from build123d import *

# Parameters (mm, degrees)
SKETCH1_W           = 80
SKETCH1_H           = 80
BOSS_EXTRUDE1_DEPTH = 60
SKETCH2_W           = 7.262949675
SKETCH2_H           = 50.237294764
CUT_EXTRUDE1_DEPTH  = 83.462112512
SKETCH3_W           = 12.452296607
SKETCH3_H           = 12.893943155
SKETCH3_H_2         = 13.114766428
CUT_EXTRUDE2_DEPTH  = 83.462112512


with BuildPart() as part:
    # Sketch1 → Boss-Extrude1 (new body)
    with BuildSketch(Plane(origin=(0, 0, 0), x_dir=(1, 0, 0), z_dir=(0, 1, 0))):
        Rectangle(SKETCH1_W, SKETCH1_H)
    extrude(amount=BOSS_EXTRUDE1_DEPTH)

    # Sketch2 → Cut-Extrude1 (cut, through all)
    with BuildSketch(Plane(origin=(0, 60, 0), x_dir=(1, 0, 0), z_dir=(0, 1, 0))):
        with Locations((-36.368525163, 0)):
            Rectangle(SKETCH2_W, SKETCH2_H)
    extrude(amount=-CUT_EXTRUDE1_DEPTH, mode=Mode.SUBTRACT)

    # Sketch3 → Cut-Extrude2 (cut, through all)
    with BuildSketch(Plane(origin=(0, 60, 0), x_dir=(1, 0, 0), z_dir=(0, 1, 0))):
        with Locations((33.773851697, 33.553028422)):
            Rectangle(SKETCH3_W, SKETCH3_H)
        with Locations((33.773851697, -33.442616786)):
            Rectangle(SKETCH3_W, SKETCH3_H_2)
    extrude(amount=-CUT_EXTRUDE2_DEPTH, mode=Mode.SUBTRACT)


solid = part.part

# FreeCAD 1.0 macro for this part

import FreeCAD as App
import Part
import Sketcher
from FreeCAD import Vector
Q = App.Units.Quantity


def add_polygon(sketch, points):
    """Adds a closed chain of lines whose ends are joined by coincident constraints."""
    first, n = sketch.GeometryCount, len(points)
    for a, b in zip(points, points[1:] + points[:1]):
        sketch.addGeometry(Part.LineSegment(App.Vector(*a, 0), App.Vector(*b, 0)), False)
    for i in range(n):
        sketch.addConstraint(Sketcher.Constraint("Coincident", first + i, 2, first + (i + 1) % n, 1))

doc = App.newDocument("Part")
body = doc.addObject("PartDesign::Body", "Body")

# Sketch on XZ plane
sketch1 = body.newObject("Sketcher::SketchObject", "Sketch")
sketch1.AttachmentSupport = (doc.getObject("XZ_Plane"), [""])
sketch1.MapMode = "FlatFace"
add_polygon(sketch1, [(-40, -40), (-40, 40), (40, 40), (40, -40)])  # lines 0-3
sketch1.addConstraint([
    Sketcher.Constraint("Vertical", 0),
    Sketcher.Constraint("Horizontal", 1),
    Sketcher.Constraint("Vertical", 2),
    Sketcher.Constraint("Horizontal", 3),
    Sketcher.Constraint("Symmetric", 0, 2, 2, 2, -1, 1),
    Sketcher.Constraint("Equal", 3, 0),
    Sketcher.Constraint("DistanceX", 1, 1, 1, 2, Q("80 mm")),
])
pad1 = body.newObject("PartDesign::Pad", "Pad")
pad1.Profile = sketch1
pad1.Length = 60
pad1.Reversed = True

# Sketch on XZ plane
sketch2 = body.newObject("Sketcher::SketchObject", "Sketch001")
sketch2.AttachmentSupport = (doc.getObject("XZ_Plane"), [""])
sketch2.MapMode = "FlatFace"
sketch2.AttachmentOffset = App.Placement(Vector(0, 0, -60), App.Rotation())
add_polygon(sketch2, [(-40, -25), (-40, 25), (-33, 25), (-33, -25)])  # lines 0-3
sketch2.addConstraint([
    Sketcher.Constraint("Vertical", 0),
    Sketcher.Constraint("Horizontal", 1),
    Sketcher.Constraint("Vertical", 2),
    Sketcher.Constraint("Horizontal", 3),
    Sketcher.Constraint("DistanceX", 0, 2, -1, 1, Q("40 mm")),
    Sketcher.Constraint("DistanceX", 1, 1, 1, 2, Q("7.26295 mm")),
    Sketcher.Constraint("DistanceY", 0, 1, 0, 2, Q("50.237295 mm")),
    Sketcher.Constraint("DistanceY", -1, 1, 0, 2, Q("25.118647 mm")),
])
pocket1 = body.newObject("PartDesign::Pocket", "Pocket")
pocket1.Profile = sketch2
pocket1.Type = "ThroughAll"
pocket1.Reversed = True

# Sketch on XZ plane
sketch3 = body.newObject("Sketcher::SketchObject", "Sketch002")
sketch3.AttachmentSupport = (doc.getObject("XZ_Plane"), [""])
sketch3.MapMode = "FlatFace"
sketch3.AttachmentOffset = App.Placement(Vector(0, 0, -60), App.Rotation())
add_polygon(sketch3, [(28, -40), (28, -27), (40, -27), (40, -40)])  # lines 0-3
add_polygon(sketch3, [(28, 27), (28, 40), (40, 40), (40, 27)])  # lines 4-7
sketch3.addConstraint([
    Sketcher.Constraint("Vertical", 0),
    Sketcher.Constraint("Horizontal", 1),
    Sketcher.Constraint("Vertical", 2),
    Sketcher.Constraint("Horizontal", 3),
    Sketcher.Constraint("Vertical", 4),
    Sketcher.Constraint("Horizontal", 5),
    Sketcher.Constraint("Vertical", 6),
    Sketcher.Constraint("Horizontal", 7),
    Sketcher.Constraint("Symmetric", 3, 2, 4, 2, -1),
    Sketcher.Constraint("Vertical", 2, 2, 5, 2),
    Sketcher.Constraint("DistanceX", -1, 1, 1, 2, Q("40 mm")),
    Sketcher.Constraint("DistanceY", 2, 2, -1, 1, Q("40 mm")),
    Sketcher.Constraint("DistanceX", 1, 1, 1, 2, Q("12.452297 mm")),
    Sketcher.Constraint("DistanceY", 0, 1, 0, 2, Q("12.893943 mm")),
    Sketcher.Constraint("DistanceY", 4, 1, 4, 2, Q("13.114766 mm")),
])
pocket2 = body.newObject("PartDesign::Pocket", "Pocket001")
pocket2.Profile = sketch3
pocket2.Type = "ThroughAll"
pocket2.Reversed = True

doc.recompute()
